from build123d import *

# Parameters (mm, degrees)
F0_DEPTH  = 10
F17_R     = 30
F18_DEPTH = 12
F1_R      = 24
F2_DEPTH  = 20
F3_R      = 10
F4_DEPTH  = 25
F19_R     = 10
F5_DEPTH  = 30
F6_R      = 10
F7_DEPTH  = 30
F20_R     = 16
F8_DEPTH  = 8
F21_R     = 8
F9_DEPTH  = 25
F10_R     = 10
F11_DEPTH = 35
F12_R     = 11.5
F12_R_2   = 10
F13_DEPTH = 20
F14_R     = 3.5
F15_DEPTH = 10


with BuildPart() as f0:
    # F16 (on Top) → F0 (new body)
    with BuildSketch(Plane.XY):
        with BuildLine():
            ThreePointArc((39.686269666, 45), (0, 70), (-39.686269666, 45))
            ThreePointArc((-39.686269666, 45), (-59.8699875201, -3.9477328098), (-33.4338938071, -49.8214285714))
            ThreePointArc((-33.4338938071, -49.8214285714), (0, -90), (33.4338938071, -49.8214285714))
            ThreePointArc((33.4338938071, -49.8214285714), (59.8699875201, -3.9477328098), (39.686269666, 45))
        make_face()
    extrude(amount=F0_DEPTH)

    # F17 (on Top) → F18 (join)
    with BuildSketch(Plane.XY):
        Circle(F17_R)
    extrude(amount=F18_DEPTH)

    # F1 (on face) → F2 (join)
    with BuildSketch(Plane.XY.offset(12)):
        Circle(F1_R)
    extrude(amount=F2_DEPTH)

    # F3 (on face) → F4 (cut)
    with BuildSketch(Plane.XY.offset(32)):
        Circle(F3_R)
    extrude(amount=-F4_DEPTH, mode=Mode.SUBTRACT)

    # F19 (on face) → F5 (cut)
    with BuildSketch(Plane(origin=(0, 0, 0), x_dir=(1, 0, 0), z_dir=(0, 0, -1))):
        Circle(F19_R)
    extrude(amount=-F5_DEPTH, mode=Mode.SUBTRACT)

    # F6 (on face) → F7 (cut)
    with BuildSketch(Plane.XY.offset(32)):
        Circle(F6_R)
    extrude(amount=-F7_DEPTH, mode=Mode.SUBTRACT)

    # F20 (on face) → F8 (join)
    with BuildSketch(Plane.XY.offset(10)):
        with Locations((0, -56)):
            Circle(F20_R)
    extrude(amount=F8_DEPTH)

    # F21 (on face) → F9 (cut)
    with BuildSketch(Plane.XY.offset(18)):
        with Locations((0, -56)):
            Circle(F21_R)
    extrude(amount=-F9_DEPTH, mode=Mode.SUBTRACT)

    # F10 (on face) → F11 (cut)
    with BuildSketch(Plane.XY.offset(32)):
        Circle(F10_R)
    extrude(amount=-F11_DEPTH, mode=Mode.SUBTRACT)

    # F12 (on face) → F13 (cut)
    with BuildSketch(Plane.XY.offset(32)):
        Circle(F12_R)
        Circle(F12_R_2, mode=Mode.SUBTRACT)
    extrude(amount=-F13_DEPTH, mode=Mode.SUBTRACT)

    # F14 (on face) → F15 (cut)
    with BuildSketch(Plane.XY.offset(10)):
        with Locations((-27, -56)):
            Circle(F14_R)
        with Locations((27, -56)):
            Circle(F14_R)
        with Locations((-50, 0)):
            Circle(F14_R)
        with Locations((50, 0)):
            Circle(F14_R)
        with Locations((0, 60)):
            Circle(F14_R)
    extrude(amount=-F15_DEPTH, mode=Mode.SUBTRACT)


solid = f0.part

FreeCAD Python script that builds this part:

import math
import FreeCAD as App
import Part
import Sketcher
from FreeCAD import Vector
Q = App.Units.Quantity

doc = App.newDocument("Part")
params = doc.addObject("Spreadsheet::Sheet", "Params")
for row, (alias, value) in enumerate([
    ("sketch1_radius", "44 mm"),
    ("sketch1_radius2", "60 mm"),
    ("sketch1_radius3", "34 mm"),
    ("pad1_length", "10 mm"),
    ("sketch2_diameter", "60 mm"),
    ("pad2_length", "12 mm"),
    ("sketch3_diameter", "48 mm"),
    ("pad3_length", "20 mm"),
    ("sketch4_diameter", "20 mm"),
    ("pocket1_length", "25 mm"),
    ("sketch5_diameter", "20 mm"),
    ("pocket2_length", "30 mm"),
    ("sketch6_diameter", "20 mm"),
    ("pocket3_length", "30 mm"),
    ("sketch7_diameter", "32 mm"),
    ("pad4_length", "8 mm"),
    ("sketch8_diameter", "16 mm"),
    ("pocket4_length", "25 mm"),
    ("sketch9_diameter", "20 mm"),
    ("pocket5_length", "35 mm"),
    ("sketch10_diameter", "23 mm"),
    ("sketch10_diameter2", "20 mm"),
    ("pocket6_length", "20 mm"),
    ("sketch11_diameter", "7 mm"),
    ("pocket7_length", "10 mm"),
], start=1):
    params.set(f"A{row}", alias)
    params.set(f"B{row}", "=" + value)
    params.setAlias(f"B{row}", alias)

body = doc.addObject("PartDesign::Body", "Body")

# Sketch on XY plane
sketch1 = doc.addObject("Sketcher::SketchObject", "Sketch")
body.addObject(sketch1)
sketch1.AttachmentSupport = (doc.XY_Plane, [""])
sketch1.MapMode = "FlatFace"
sketch1.addGeometry(Part.ArcOfCircle(Part.Circle(Vector(0, 26, 0), Vector(0, 0, 1), 44), math.radians(26), math.radians(154)), False)
sketch1.addGeometry(Part.ArcOfCircle(Part.Circle(Vector(0, 0, 0), Vector(0, 0, 1), 60), math.radians(131), math.radians(236)), False)
sketch1.addGeometry(Part.ArcOfCircle(Part.Circle(Vector(0, -56, 0), Vector(0, 0, 1), 34), math.radians(170), math.radians(370)), False)
sketch1.addGeometry(Part.ArcOfCircle(Part.Circle(Vector(0, 0, 0), Vector(0, 0, 1), 60), math.radians(-56), math.radians(49)), False)
sketch1.addConstraint(Sketcher.Constraint("Coincident", 0, 2, 1, 1))
sketch1.addConstraint(Sketcher.Constraint("Coincident", 1, 2, 2, 1))
sketch1.addConstraint(Sketcher.Constraint("Coincident", 2, 2, 3, 1))
sketch1.addConstraint(Sketcher.Constraint("Coincident", 3, 2, 0, 1))
sketch1.addConstraint(Sketcher.Constraint("Coincident", 1, 3, -1, 1))
sketch1.addConstraint(Sketcher.Constraint("Coincident", 3, 3, -1, 1))
sketch1.addConstraint(Sketcher.Constraint("Equal", 1, 3))
sketch1.addConstraint(Sketcher.Constraint("PointOnObject", 0, 3, -2))
sketch1.addConstraint(Sketcher.Constraint("PointOnObject", 2, 3, -2))
sketch1.addConstraint(Sketcher.Constraint("Radius", 0, Q("44 mm")))
sketch1.addConstraint(Sketcher.Constraint("Radius", 1, Q("60 mm")))
sketch1.addConstraint(Sketcher.Constraint("Radius", 2, Q("34 mm")))
sketch1.addConstraint(Sketcher.Constraint("DistanceY", -1, 1, 0, 3, Q("26 mm")))
sketch1.addConstraint(Sketcher.Constraint("DistanceY", 2, 3, -1, 1, Q("56 mm")))
sketch1.setExpression("Constraints[9]", "Params.sketch1_radius")
sketch1.setExpression("Constraints[10]", "Params.sketch1_radius2")
sketch1.setExpression("Constraints[11]", "Params.sketch1_radius3")
pad1 = doc.addObject("PartDesign::Pad", "Pad")
body.addObject(pad1)
pad1.Profile = sketch1
pad1.setExpression("Length", "Params.pad1_length")

# Sketch on XY plane
sketch2 = doc.addObject("Sketcher::SketchObject", "Sketch001")
body.addObject(sketch2)
sketch2.AttachmentSupport = (doc.XY_Plane, [""])
sketch2.MapMode = "FlatFace"
sketch2.addGeometry(Part.Circle(Vector(0, 0, 0), Vector(0, 0, 1), 30), False)
sketch2.addConstraint(Sketcher.Constraint("Coincident", 0, 3, -1, 1))
sketch2.addConstraint(Sketcher.Constraint("Diameter", 0, Q("60 mm")))
sketch2.setExpression("Constraints[1]", "Params.sketch2_diameter")
pad2 = doc.addObject("PartDesign::Pad", "Pad001")
body.addObject(pad2)
pad2.Profile = sketch2
pad2.setExpression("Length", "Params.pad2_length")

# Sketch on XY plane
sketch3 = doc.addObject("Sketcher::SketchObject", "Sketch002")
body.addObject(sketch3)
sketch3.AttachmentSupport = (doc.XY_Plane, [""])
sketch3.MapMode = "FlatFace"
sketch3.AttachmentOffset = App.Placement(Vector(0, 0, 12), App.Rotation())
sketch3.addGeometry(Part.Circle(Vector(0, 0, 0), Vector(0, 0, 1), 24), False)
sketch3.addConstraint(Sketcher.Constraint("Coincident", 0, 3, -1, 1))
sketch3.addConstraint(Sketcher.Constraint("Diameter", 0, Q("48 mm")))
sketch3.setExpression("Constraints[1]", "Params.sketch3_diameter")
pad3 = doc.addObject("PartDesign::Pad", "Pad002")
body.addObject(pad3)
pad3.Profile = sketch3
pad3.setExpression("Length", "Params.pad3_length")

# Sketch on XY plane
sketch4 = doc.addObject("Sketcher::SketchObject", "Sketch003")
body.addObject(sketch4)
sketch4.AttachmentSupport = (doc.XY_Plane, [""])
sketch4.MapMode = "FlatFace"
sketch4.AttachmentOffset = App.Placement(Vector(0, 0, 32), App.Rotation())
sketch4.addGeometry(Part.Circle(Vector(0, 0, 0), Vector(0, 0, 1), 10), False)
sketch4.addConstraint(Sketcher.Constraint("Coincident", 0, 3, -1, 1))
sketch4.addConstraint(Sketcher.Constraint("Diameter", 0, Q("20 mm")))
sketch4.setExpression("Constraints[1]", "Params.sketch4_diameter")
pocket1 = doc.addObject("PartDesign::Pocket", "Pocket")
body.addObject(pocket1)
pocket1.Profile = sketch4
pocket1.setExpression("Length", "Params.pocket1_length")

# Sketch on XY plane
sketch5 = doc.addObject("Sketcher::SketchObject", "Sketch004")
body.addObject(sketch5)
sketch5.AttachmentSupport = (doc.XY_Plane, [""])
sketch5.MapMode = "FlatFace"
sketch5.addGeometry(Part.Circle(Vector(0, 0, 0), Vector(0, 0, 1), 10), False)
sketch5.addConstraint(Sketcher.Constraint("Coincident", 0, 3, -1, 1))
sketch5.addConstraint(Sketcher.Constraint("Diameter", 0, Q("20 mm")))
sketch5.setExpression("Constraints[1]", "Params.sketch5_diameter")
pocket2 = doc.addObject("PartDesign::Pocket", "Pocket001")
body.addObject(pocket2)
pocket2.Profile = sketch5
pocket2.setExpression("Length", "Params.pocket2_length")
pocket2.Reversed = True

# Sketch on XY plane
sketch6 = doc.addObject("Sketcher::SketchObject", "Sketch005")
body.addObject(sketch6)
sketch6.AttachmentSupport = (doc.XY_Plane, [""])
sketch6.MapMode = "FlatFace"
sketch6.AttachmentOffset = App.Placement(Vector(0, 0, 32), App.Rotation())
sketch6.addGeometry(Part.Circle(Vector(0, 0, 0), Vector(0, 0, 1), 10), False)
sketch6.addConstraint(Sketcher.Constraint("Coincident", 0, 3, -1, 1))
sketch6.addConstraint(Sketcher.Constraint("Diameter", 0, Q("20 mm")))
sketch6.setExpression("Constraints[1]", "Params.sketch6_diameter")
pocket3 = doc.addObject("PartDesign::Pocket", "Pocket002")
body.addObject(pocket3)
pocket3.Profile = sketch6
pocket3.setExpression("Length", "Params.pocket3_length")

# Sketch on XY plane
sketch7 = doc.addObject("Sketcher::SketchObject", "Sketch006")
body.addObject(sketch7)
sketch7.AttachmentSupport = (doc.XY_Plane, [""])
sketch7.MapMode = "FlatFace"
sketch7.AttachmentOffset = App.Placement(Vector(0, 0, 10), App.Rotation())
sketch7.addGeometry(Part.Circle(Vector(0, -56, 0), Vector(0, 0, 1), 16), False)
sketch7.addConstraint(Sketcher.Constraint("PointOnObject", 0, 3, -2))
sketch7.addConstraint(Sketcher.Constraint("Diameter", 0, Q("32 mm")))
sketch7.addConstraint(Sketcher.Constraint("DistanceY", 0, 3, -1, 1, Q("56 mm")))
sketch7.setExpression("Constraints[1]", "Params.sketch7_diameter")
pad4 = doc.addObject("PartDesign::Pad", "Pad003")
body.addObject(pad4)
pad4.Profile = sketch7
pad4.setExpression("Length", "Params.pad4_length")

# Sketch on XY plane
sketch8 = doc.addObject("Sketcher::SketchObject", "Sketch007")
body.addObject(sketch8)
sketch8.AttachmentSupport = (doc.XY_Plane, [""])
sketch8.MapMode = "FlatFace"
sketch8.AttachmentOffset = App.Placement(Vector(0, 0, 18), App.Rotation())
sketch8.addGeometry(Part.Circle(Vector(0, -56, 0), Vector(0, 0, 1), 8), False)
sketch8.addConstraint(Sketcher.Constraint("PointOnObject", 0, 3, -2))
sketch8.addConstraint(Sketcher.Constraint("Diameter", 0, Q("16 mm")))
sketch8.addConstraint(Sketcher.Constraint("DistanceY", 0, 3, -1, 1, Q("56 mm")))
sketch8.setExpression("Constraints[1]", "Params.sketch8_diameter")
pocket4 = doc.addObject("PartDesign::Pocket", "Pocket003")
body.addObject(pocket4)
pocket4.Profile = sketch8
pocket4.setExpression("Length", "Params.pocket4_length")

# Sketch on XY plane
sketch9 = doc.addObject("Sketcher::SketchObject", "Sketch008")
body.addObject(sketch9)
sketch9.AttachmentSupport = (doc.XY_Plane, [""])
sketch9.MapMode = "FlatFace"
sketch9.AttachmentOffset = App.Placement(Vector(0, 0, 32), App.Rotation())
sketch9.addGeometry(Part.Circle(Vector(0, 0, 0), Vector(0, 0, 1), 10), False)
sketch9.addConstraint(Sketcher.Constraint("Coincident", 0, 3, -1, 1))
sketch9.addConstraint(Sketcher.Constraint("Diameter", 0, Q("20 mm")))
sketch9.setExpression("Constraints[1]", "Params.sketch9_diameter")
pocket5 = doc.addObject("PartDesign::Pocket", "Pocket004")
body.addObject(pocket5)
pocket5.Profile = sketch9
pocket5.setExpression("Length", "Params.pocket5_length")

# Sketch on XY plane
sketch10 = doc.addObject("Sketcher::SketchObject", "Sketch009")
body.addObject(sketch10)
sketch10.AttachmentSupport = (doc.XY_Plane, [""])
sketch10.MapMode = "FlatFace"
sketch10.AttachmentOffset = App.Placement(Vector(0, 0, 32), App.Rotation())
sketch10.addGeometry(Part.Circle(Vector(0, 0, 0), Vector(0, 0, 1), 12), False)
sketch10.addGeometry(Part.Circle(Vector(0, 0, 0), Vector(0, 0, 1), 10), False)
sketch10.addConstraint(Sketcher.Constraint("Coincident", 0, 3, -1, 1))
sketch10.addConstraint(Sketcher.Constraint("Coincident", 1, 3, -1, 1))
sketch10.addConstraint(Sketcher.Constraint("Diameter", 0, Q("23 mm")))
sketch10.addConstraint(Sketcher.Constraint("Diameter", 1, Q("20 mm")))
sketch10.setExpression("Constraints[2]", "Params.sketch10_diameter")
sketch10.setExpression("Constraints[3]", "Params.sketch10_diameter2")
pocket6 = doc.addObject("PartDesign::Pocket", "Pocket005")
body.addObject(pocket6)
pocket6.Profile = sketch10
pocket6.setExpression("Length", "Params.pocket6_length")

# Sketch on XY plane
sketch11 = doc.addObject("Sketcher::SketchObject", "Sketch010")
body.addObject(sketch11)
sketch11.AttachmentSupport = (doc.XY_Plane, [""])
sketch11.MapMode = "FlatFace"
sketch11.AttachmentOffset = App.Placement(Vector(0, 0, 10), App.Rotation())
sketch11.addGeometry(Part.Circle(Vector(-27, -56, 0), Vector(0, 0, 1), 3.5), False)
sketch11.addGeometry(Part.Circle(Vector(27, -56, 0), Vector(0, 0, 1), 3.5), False)
sketch11.addGeometry(Part.Circle(Vector(-50, 0, 0), Vector(0, 0, 1), 3.5), False)
sketch11.addGeometry(Part.Circle(Vector(50, 0, 0), Vector(0, 0, 1), 3.5), False)
sketch11.addGeometry(Part.Circle(Vector(0, 60, 0), Vector(0, 0, 1), 3.5), False)
sketch11.addConstraint(Sketcher.Constraint("Equal", 0, 1))
sketch11.addConstraint(Sketcher.Constraint("Equal", 1, 2))
sketch11.addConstraint(Sketcher.Constraint("Equal", 2, 3))
sketch11.addConstraint(Sketcher.Constraint("Equal", 3, 4))
sketch11.addConstraint(Sketcher.Constraint("Symmetric", 2, 3, 3, 3, -1, 1))
sketch11.addConstraint(Sketcher.Constraint("Symmetric", 0, 3, 1, 3, -2))
sketch11.addConstraint(Sketcher.Constraint("PointOnObject", 2, 3, -1))
sketch11.addConstraint(Sketcher.Constraint("PointOnObject", 4, 3, -2))
sketch11.addConstraint(Sketcher.Constraint("Diameter", 0, Q("7 mm")))
sketch11.addConstraint(Sketcher.Constraint("DistanceX", 0, 3, -1, 1, Q("27 mm")))
sketch11.addConstraint(Sketcher.Constraint("DistanceY", 0, 3, -1, 1, Q("56 mm")))
sketch11.addConstraint(Sketcher.Constraint("DistanceX", 2, 3, -1, 1, Q("50 mm")))
sketch11.addConstraint(Sketcher.Constraint("DistanceY", -1, 1, 4, 3, Q("60 mm")))
sketch11.setExpression("Constraints[8]", "Params.sketch11_diameter")
pocket7 = doc.addObject("PartDesign::Pocket", "Pocket006")
body.addObject(pocket7)
pocket7.Profile = sketch11
pocket7.setExpression("Length", "Params.pocket7_length")

doc.recompute()
